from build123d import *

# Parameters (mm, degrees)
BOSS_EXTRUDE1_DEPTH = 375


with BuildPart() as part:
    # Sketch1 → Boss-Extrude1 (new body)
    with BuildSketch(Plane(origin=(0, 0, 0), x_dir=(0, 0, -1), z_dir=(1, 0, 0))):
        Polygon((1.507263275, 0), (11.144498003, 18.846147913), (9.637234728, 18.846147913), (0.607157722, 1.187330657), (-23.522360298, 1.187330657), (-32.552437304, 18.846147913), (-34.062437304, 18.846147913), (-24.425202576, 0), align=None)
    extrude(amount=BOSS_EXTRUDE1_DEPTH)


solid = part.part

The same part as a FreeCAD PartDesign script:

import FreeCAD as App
import Part
import Sketcher
Q = App.Units.Quantity


def add_polygon(sketch, points):
    """Adds a closed chain of lines whose ends are joined by coincident constraints."""
    first, n = sketch.GeometryCount, len(points)
    for a, b in zip(points, points[1:] + points[:1]):
        sketch.addGeometry(Part.LineSegment(App.Vector(*a, 0), App.Vector(*b, 0)), False)
    for i in range(n):
        sketch.addConstraint(Sketcher.Constraint("Coincident", first + i, 2, first + (i + 1) % n, 1))

doc = App.newDocument("Part")
body = doc.addObject("PartDesign::Body", "Body")

# Sketch on YZ plane
sketch1 = body.newObject("Sketcher::SketchObject", "Sketch")
sketch1.AttachmentSupport = (doc.getObject("YZ_Plane"), [""])
sketch1.MapMode = "FlatFace"
add_polygon(sketch1, [(0, -1.5), (18.8, -11.1), (18.8, -9.6), (1.2, -0.6), (1.2, 23.5), (18.8, 32.6), (18.8, 34.1), (0, 24.4)])  # lines 0-7
sketch1.addConstraint([
    Sketcher.Constraint("Vertical", 1),
    Sketcher.Constraint("Vertical", 3),
    Sketcher.Constraint("Vertical", 5),
    Sketcher.Constraint("Vertical", 7),
    Sketcher.Constraint("PointOnObject", 6, 2, -2),
    Sketcher.Constraint("Parallel", 0, 2),
    Sketcher.Constraint("Parallel", 4, 6),
    Sketcher.Constraint("Vertical", 1, 2, 4, 2),
    Sketcher.Constraint("Equal", 2, 4),
    Sketcher.Constraint("DistanceY", 5, 1, 5, 2, Q("1.51 mm")),
    Sketcher.Constraint("DistanceY", 3, 1, 3, 2, Q("24.129518 mm")),
    Sketcher.Constraint("DistanceY", 0, 2, -1, 1, Q("11.144498 mm")),
    Sketcher.Constraint("Distance", 2, Q("19.833712 mm")),
    Sketcher.Constraint("DistanceY", 1, 1, 1, 2, Q("1.507263 mm")),
    Sketcher.Constraint("DistanceY", 7, 2, 7, 1, Q("25.932466 mm")),
    Sketcher.Constraint("DistanceX", -1, 1, 2, 2, Q("1.187331 mm")),
])
pad1 = body.newObject("PartDesign::Pad", "Pad")
pad1.Profile = sketch1
pad1.Length = 375

doc.recompute()
